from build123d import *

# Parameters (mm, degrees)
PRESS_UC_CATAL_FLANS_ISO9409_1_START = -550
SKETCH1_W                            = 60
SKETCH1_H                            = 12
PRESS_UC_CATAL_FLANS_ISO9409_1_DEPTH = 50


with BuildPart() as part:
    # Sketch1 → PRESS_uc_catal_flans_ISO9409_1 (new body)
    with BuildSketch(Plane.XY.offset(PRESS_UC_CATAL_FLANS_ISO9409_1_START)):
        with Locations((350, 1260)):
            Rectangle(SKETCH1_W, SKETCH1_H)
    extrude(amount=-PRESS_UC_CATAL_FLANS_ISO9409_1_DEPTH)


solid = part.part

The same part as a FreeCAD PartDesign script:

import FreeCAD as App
import Part
import Sketcher

V = App.Vector


def add_polygon(sketch, points):
    """Adds a closed chain of lines whose ends are joined by coincident constraints."""
    first, n = sketch.GeometryCount, len(points)
    for a, b in zip(points, points[1:] + points[:1]):
        sketch.addGeometry(Part.LineSegment(App.Vector(*a, 0), App.Vector(*b, 0)), False)
    for i in range(n):
        sketch.addConstraint(Sketcher.Constraint("Coincident", first + i, 2, first + (i + 1) % n, 1))

doc = App.newDocument("Part")
params = doc.addObject("Spreadsheet::Sheet", "Params")
for row, (alias, value) in enumerate([
    ("sketch1_width", "60 mm"),
    ("sketch1_height", "12 mm"),
    ("pad1_length", "50 mm"),
], start=1):
    params.set(f"A{row}", alias)
    params.set(f"B{row}", "=" + value)
    params.setAlias(f"B{row}", alias)

body = doc.addObject("PartDesign::Body", "Body")

sketch1 = body.newObject("Sketcher::SketchObject", "Sketch")
sketch1.AttachmentSupport = (doc.getObject("XY_Plane"), [""])
sketch1.MapMode = "FlatFace"
sketch1.AttachmentOffset = App.Placement(V(0, 0, -550), App.Rotation())
add_polygon(sketch1, [(320, 1266), (320, 1254), (380, 1254), (380, 1266)])
sketch1.addConstraint([
    Sketcher.Constraint("Vertical", 0),
    Sketcher.Constraint("Horizontal", 1),
    Sketcher.Constraint("Vertical", 2),
    Sketcher.Constraint("Horizontal", 3),
    Sketcher.Constraint("DistanceX", 1, 1, 1, 2, 60.0),
    Sketcher.Constraint("DistanceY", 0, 2, 0, 1, 12.0),
    Sketcher.Constraint("DistanceX", -1, 1, 0, 2, 320.0),
    Sketcher.Constraint("DistanceY", -1, 1, 0, 2, 1254.0),
])
sketch1.setExpression("Constraints[8]", "Params.sketch1_width")
sketch1.setExpression("Constraints[9]", "Params.sketch1_height")
pad1 = body.newObject("PartDesign::Pad", "Pad")
pad1.Profile = sketch1
pad1.setExpression("Length", "Params.pad1_length")
pad1.Reversed = True

doc.recompute()
